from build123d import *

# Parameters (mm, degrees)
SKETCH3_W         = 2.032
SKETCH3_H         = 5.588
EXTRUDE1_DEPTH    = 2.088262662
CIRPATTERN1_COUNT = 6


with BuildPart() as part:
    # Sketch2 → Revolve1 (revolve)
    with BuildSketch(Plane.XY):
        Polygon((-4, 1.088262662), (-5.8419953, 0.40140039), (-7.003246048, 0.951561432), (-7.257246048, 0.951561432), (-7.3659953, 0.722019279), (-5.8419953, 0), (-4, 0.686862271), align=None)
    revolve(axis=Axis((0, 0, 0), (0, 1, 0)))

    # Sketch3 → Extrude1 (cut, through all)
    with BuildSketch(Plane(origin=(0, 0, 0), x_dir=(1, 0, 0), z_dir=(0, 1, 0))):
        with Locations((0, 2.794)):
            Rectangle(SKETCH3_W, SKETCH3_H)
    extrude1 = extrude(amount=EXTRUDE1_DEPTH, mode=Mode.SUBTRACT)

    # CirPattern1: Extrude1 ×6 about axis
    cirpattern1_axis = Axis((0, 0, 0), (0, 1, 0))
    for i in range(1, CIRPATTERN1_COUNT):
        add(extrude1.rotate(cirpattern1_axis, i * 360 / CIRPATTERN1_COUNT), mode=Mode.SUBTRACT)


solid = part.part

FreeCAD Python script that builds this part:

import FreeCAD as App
import Part
import Sketcher

V = App.Vector
Q = App.Units.Quantity

doc = App.newDocument("Part")
body = doc.addObject("PartDesign::Body", "Body")

# Sketch on XY plane
sketch1 = body.newObject("Sketcher::SketchObject", "Sketch")
sketch1.AttachmentSupport = (doc.getObject("XY_Plane"), [""])
sketch1.MapMode = "FlatFace"
sketch1.addGeometry(Part.LineSegment(V(-4, 1.09, 0), V(-5.84, 0.4, 0)), False)
sketch1.addGeometry(Part.LineSegment(V(-5.84, 0.4, 0), V(-7, 0.95, 0)), False)
sketch1.addGeometry(Part.LineSegment(V(-7, 0.95, 0), V(-7.26, 0.95, 0)), False)
sketch1.addGeometry(Part.LineSegment(V(-7.26, 0.95, 0), V(-7.37, 0.72, 0)), False)
sketch1.addGeometry(Part.LineSegment(V(-7.37, 0.72, 0), V(-5.84, 0, 0)), False)
sketch1.addGeometry(Part.LineSegment(V(-5.84, 0, 0), V(-4, 0.69, 0)), False)
sketch1.addGeometry(Part.LineSegment(V(-4, 0.69, 0), V(-4, 1.09, 0)), False)
sketch1.addConstraint(Sketcher.Constraint("Coincident", 0, 2, 1, 1))
sketch1.addConstraint(Sketcher.Constraint("Coincident", 1, 2, 2, 1))
sketch1.addConstraint(Sketcher.Constraint("Coincident", 2, 2, 3, 1))
sketch1.addConstraint(Sketcher.Constraint("Coincident", 3, 2, 4, 1))
sketch1.addConstraint(Sketcher.Constraint("Coincident", 4, 2, 5, 1))
sketch1.addConstraint(Sketcher.Constraint("Coincident", 5, 2, 6, 1))
sketch1.addConstraint(Sketcher.Constraint("Coincident", 6, 2, 0, 1))
sketch1.addConstraint(Sketcher.Constraint("Horizontal", 2))
sketch1.addConstraint(Sketcher.Constraint("Vertical", 6))
sketch1.addConstraint(Sketcher.Constraint("PointOnObject", 4, 2, -1))
sketch1.addConstraint(Sketcher.Constraint("Perpendicular", 1, 3))
sketch1.addConstraint(Sketcher.Constraint("Perpendicular", 3, 4))
sketch1.addConstraint(Sketcher.Constraint("Parallel", 0, 5))
sketch1.addConstraint(Sketcher.Constraint("Vertical", 0, 2, 4, 2))
sketch1.addConstraint(Sketcher.Constraint("DistanceX", 2, 2, 2, 1, Q("0.01 in")))
sketch1.addConstraint(Sketcher.Constraint("Distance", 3, Q("0.01 in")))
sketch1.addConstraint(Sketcher.Constraint("DistanceX", 0, 2, -1, 1, Q("0.2299998 in")))
sketch1.addConstraint(Sketcher.Constraint("DistanceX", 3, 2, -1, 1, Q("0.2899998 in")))
sketch1.addConstraint(Sketcher.Constraint("Angle", 0, Q("-159.55 deg")))
sketch1.addConstraint(Sketcher.Constraint("Angle", 1, Q("154.65 deg")))
sketch1.addConstraint(Sketcher.Constraint("DistanceX", 5, 2, -1, 1, 4.0))
revolution = body.newObject("PartDesign::Revolution", "Revolution")
revolution.Profile = sketch1
revolution.ReferenceAxis = (sketch1, ["V_Axis"])
revolution.Angle = 360

# Sketch on XZ plane
sketch2 = body.newObject("Sketcher::SketchObject", "Sketch001")
sketch2.AttachmentSupport = (doc.getObject("XZ_Plane"), [""])
sketch2.MapMode = "FlatFace"
sketch2.addGeometry(Part.LineSegment(V(-1, -5.6, 0), V(-1, 0, 0)), False)
sketch2.addGeometry(Part.LineSegment(V(-1, 0, 0), V(1, 0, 0)), False)
sketch2.addGeometry(Part.LineSegment(V(1, 0, 0), V(1, -5.6, 0)), False)
sketch2.addGeometry(Part.LineSegment(V(1, -5.6, 0), V(-1, -5.6, 0)), False)
sketch2.addConstraint(Sketcher.Constraint("Coincident", 0, 2, 1, 1))
sketch2.addConstraint(Sketcher.Constraint("Coincident", 1, 2, 2, 1))
sketch2.addConstraint(Sketcher.Constraint("Coincident", 2, 2, 3, 1))
sketch2.addConstraint(Sketcher.Constraint("Coincident", 3, 2, 0, 1))
sketch2.addConstraint(Sketcher.Constraint("Vertical", 0))
sketch2.addConstraint(Sketcher.Constraint("Horizontal", 1))
sketch2.addConstraint(Sketcher.Constraint("Vertical", 2))
sketch2.addConstraint(Sketcher.Constraint("Horizontal", 3))
sketch2.addConstraint(Sketcher.Constraint("Symmetric", 0, 2, 1, 2, -1, 1))
sketch2.addConstraint(Sketcher.Constraint("DistanceX", 1, 1, 1, 2, Q("0.08 in")))
sketch2.addConstraint(Sketcher.Constraint("DistanceY", 0, 1, 0, 2, Q("0.22 in")))
pocket1 = body.newObject("PartDesign::Pocket", "Pocket")
pocket1.Profile = sketch2
pocket1.Type = "ThroughAll"
doc.recompute()

polarpattern = body.newObject("PartDesign::PolarPattern", "PolarPattern")
polarpattern.Originals = [pocket1]
polarpattern.Axis = (doc.getObject("Y_Axis"), [""])
polarpattern.Angle = 360
polarpattern.Occurrences = 6
body.Tip = polarpattern

doc.recompute()
